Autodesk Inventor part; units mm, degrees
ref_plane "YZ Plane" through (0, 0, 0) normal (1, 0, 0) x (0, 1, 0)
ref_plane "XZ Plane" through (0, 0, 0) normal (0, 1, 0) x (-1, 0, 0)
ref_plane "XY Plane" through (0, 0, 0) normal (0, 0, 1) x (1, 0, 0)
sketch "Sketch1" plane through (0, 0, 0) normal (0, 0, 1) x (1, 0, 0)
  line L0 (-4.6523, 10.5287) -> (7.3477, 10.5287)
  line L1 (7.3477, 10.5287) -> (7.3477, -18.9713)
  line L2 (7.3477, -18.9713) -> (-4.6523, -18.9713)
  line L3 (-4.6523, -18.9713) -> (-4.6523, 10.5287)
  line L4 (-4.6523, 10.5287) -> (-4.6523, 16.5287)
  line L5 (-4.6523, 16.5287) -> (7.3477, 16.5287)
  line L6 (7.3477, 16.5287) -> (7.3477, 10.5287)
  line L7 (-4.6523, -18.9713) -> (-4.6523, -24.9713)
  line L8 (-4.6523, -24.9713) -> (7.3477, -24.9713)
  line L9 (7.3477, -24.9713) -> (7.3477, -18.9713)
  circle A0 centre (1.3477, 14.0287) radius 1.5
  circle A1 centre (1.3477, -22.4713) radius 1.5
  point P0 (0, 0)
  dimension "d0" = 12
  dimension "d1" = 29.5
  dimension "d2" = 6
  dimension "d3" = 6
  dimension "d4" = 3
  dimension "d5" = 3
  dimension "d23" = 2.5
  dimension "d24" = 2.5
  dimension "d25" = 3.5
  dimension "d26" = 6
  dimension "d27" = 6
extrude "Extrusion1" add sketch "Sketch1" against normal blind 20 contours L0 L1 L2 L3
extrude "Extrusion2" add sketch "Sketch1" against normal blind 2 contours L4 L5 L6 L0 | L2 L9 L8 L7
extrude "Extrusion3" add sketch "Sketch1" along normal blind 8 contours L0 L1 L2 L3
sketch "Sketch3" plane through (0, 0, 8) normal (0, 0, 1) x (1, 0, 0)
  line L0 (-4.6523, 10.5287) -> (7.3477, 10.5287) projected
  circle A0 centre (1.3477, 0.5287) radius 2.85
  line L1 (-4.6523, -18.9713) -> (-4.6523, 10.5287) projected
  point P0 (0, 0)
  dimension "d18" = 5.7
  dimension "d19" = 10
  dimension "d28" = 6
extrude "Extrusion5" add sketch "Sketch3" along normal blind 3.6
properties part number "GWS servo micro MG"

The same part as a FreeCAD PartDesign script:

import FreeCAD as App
import Part
import Sketcher

V = App.Vector


def add_polygon(sketch, points):
    """Adds a closed chain of lines whose ends are joined by coincident constraints."""
    first, n = sketch.GeometryCount, len(points)
    for a, b in zip(points, points[1:] + points[:1]):
        sketch.addGeometry(Part.LineSegment(App.Vector(*a, 0), App.Vector(*b, 0)), False)
    for i in range(n):
        sketch.addConstraint(Sketcher.Constraint("Coincident", first + i, 2, first + (i + 1) % n, 1))

doc = App.newDocument("Part")
params = doc.addObject("Spreadsheet::Sheet", "Params")
for row, (alias, value) in enumerate([
    ("sketch1_width", "12 mm"),
    ("sketch1_height", "29.5 mm"),
    ("pad1_length", "20 mm"),
    ("sketch2_diameter", "3 mm"),
    ("sketch2_width", "12 mm"),
    ("sketch2_height", "6 mm"),
    ("pad2_length", "2 mm"),
    ("sketch3_width", "12 mm"),
    ("sketch3_height", "29.5 mm"),
    ("pad3_length", "8 mm"),
    ("sketch4_diameter", "5.7 mm"),
    ("pad4_length", "3.6 mm"),
], start=1):
    params.set(f"A{row}", alias)
    params.set(f"B{row}", "=" + value)
    params.setAlias(f"B{row}", alias)

body = doc.addObject("PartDesign::Body", "Body")

sketch1 = body.newObject("Sketcher::SketchObject", "Sketch")
sketch1.AttachmentSupport = (doc.getObject("XY_Plane"), [""])
sketch1.MapMode = "FlatFace"
add_polygon(sketch1, [(7, 11), (-5, 11), (-5, -19), (7, -19)])
sketch1.addConstraint(Sketcher.Constraint("Horizontal", 0))
sketch1.addConstraint(Sketcher.Constraint("Vertical", 1))
sketch1.addConstraint(Sketcher.Constraint("Horizontal", 2))
sketch1.addConstraint(Sketcher.Constraint("Vertical", 3))
sketch1.addConstraint(Sketcher.Constraint("DistanceX", 0, 2, 0, 1, 12.0))
sketch1.addConstraint(Sketcher.Constraint("DistanceY", 1, 2, 1, 1, 29.5))
sketch1.addConstraint(Sketcher.Constraint("DistanceX", 0, 2, -1, 1, 4.6523))
sketch1.addConstraint(Sketcher.Constraint("DistanceY", -1, 1, 0, 2, 10.5287))
sketch1.setExpression("Constraints[8]", "Params.sketch1_width")
sketch1.setExpression("Constraints[9]", "Params.sketch1_height")
pad1 = body.newObject("PartDesign::Pad", "Pad")
pad1.Profile = sketch1
pad1.setExpression("Length", "Params.pad1_length")
pad1.Reversed = True

sketch2 = body.newObject("Sketcher::SketchObject", "Sketch001")
sketch2.AttachmentSupport = (doc.getObject("XY_Plane"), [""])
sketch2.MapMode = "FlatFace"
add_polygon(sketch2, [(-4.7, 16.5), (-4.7, 10.5), (7.3, 10.5), (7.3, 16.5)])
sketch2.addGeometry(Part.Circle(V(1.3, 14, 0), V(0, 0, 1), 1.5), False)
add_polygon(sketch2, [(7.3, -19), (-4.7, -19), (-4.7, -25), (7.3, -25)])
sketch2.addGeometry(Part.Circle(V(1.3, -22.5, 0), V(0, 0, 1), 1.5), False)
sketch2.addConstraint(Sketcher.Constraint("Vertical", 0))
sketch2.addConstraint(Sketcher.Constraint("Horizontal", 1))
sketch2.addConstraint(Sketcher.Constraint("Vertical", 2))
sketch2.addConstraint(Sketcher.Constraint("Horizontal", 3))
sketch2.addConstraint(Sketcher.Constraint("Horizontal", 5))
sketch2.addConstraint(Sketcher.Constraint("Vertical", 6))
sketch2.addConstraint(Sketcher.Constraint("Horizontal", 7))
sketch2.addConstraint(Sketcher.Constraint("Vertical", 8))
sketch2.addConstraint(Sketcher.Constraint("Equal", 4, 9))
sketch2.addConstraint(Sketcher.Constraint("Vertical", 4, 3, 9, 3))
sketch2.addConstraint(Sketcher.Constraint("Vertical", 3, 2, 5, 2))
sketch2.addConstraint(Sketcher.Constraint("Vertical", 2, 2, 7, 2))
sketch2.addConstraint(Sketcher.Constraint("Equal", 2, 6))
sketch2.addConstraint(Sketcher.Constraint("Diameter", 4, 3.0))
sketch2.addConstraint(Sketcher.Constraint("DistanceX", 1, 1, 1, 2, 12.0))
sketch2.addConstraint(Sketcher.Constraint("DistanceY", 0, 2, 0, 1, 6.0))
sketch2.addConstraint(Sketcher.Constraint("DistanceX", 0, 2, 4, 3, 6.0))
sketch2.addConstraint(Sketcher.Constraint("DistanceY", 0, 2, 4, 3, 3.5))
sketch2.addConstraint(Sketcher.Constraint("DistanceY", 9, 3, 5, 2, 3.5))
sketch2.addConstraint(Sketcher.Constraint("DistanceY", 5, 2, 0, 2, 29.5))
sketch2.addConstraint(Sketcher.Constraint("DistanceX", -1, 1, 4, 3, 1.3477))
sketch2.addConstraint(Sketcher.Constraint("DistanceY", -1, 1, 4, 3, 14.0287))
sketch2.setExpression("Constraints[21]", "Params.sketch2_diameter")
sketch2.setExpression("Constraints[22]", "Params.sketch2_width")
sketch2.setExpression("Constraints[23]", "Params.sketch2_height")
pad2 = body.newObject("PartDesign::Pad", "Pad001")
pad2.Profile = sketch2
pad2.setExpression("Length", "Params.pad2_length")
pad2.Reversed = True

sketch3 = body.newObject("Sketcher::SketchObject", "Sketch002")
sketch3.AttachmentSupport = (doc.getObject("XY_Plane"), [""])
sketch3.MapMode = "FlatFace"
add_polygon(sketch3, [(7, 11), (-5, 11), (-5, -19), (7, -19)])
sketch3.addConstraint(Sketcher.Constraint("Horizontal", 0))
sketch3.addConstraint(Sketcher.Constraint("Vertical", 1))
sketch3.addConstraint(Sketcher.Constraint("Horizontal", 2))
sketch3.addConstraint(Sketcher.Constraint("Vertical", 3))
sketch3.addConstraint(Sketcher.Constraint("DistanceX", 0, 2, 0, 1, 12.0))
sketch3.addConstraint(Sketcher.Constraint("DistanceY", 1, 2, 1, 1, 29.5))
sketch3.addConstraint(Sketcher.Constraint("DistanceX", 0, 2, -1, 1, 4.6523))
sketch3.addConstraint(Sketcher.Constraint("DistanceY", -1, 1, 0, 2, 10.5287))
sketch3.setExpression("Constraints[8]", "Params.sketch3_width")
sketch3.setExpression("Constraints[9]", "Params.sketch3_height")
pad3 = body.newObject("PartDesign::Pad", "Pad002")
pad3.Profile = sketch3
pad3.setExpression("Length", "Params.pad3_length")

sketch4 = body.newObject("Sketcher::SketchObject", "Sketch003")
sketch4.AttachmentSupport = (doc.getObject("XY_Plane"), [""])
sketch4.MapMode = "FlatFace"
sketch4.AttachmentOffset = App.Placement(V(0, 0, 8), App.Rotation())
sketch4.addGeometry(Part.Circle(V(1.3, 0.5, 0), V(0, 0, 1), 2.9), False)
sketch4.addConstraint(Sketcher.Constraint("Diameter", 0, 5.7))
sketch4.addConstraint(Sketcher.Constraint("DistanceX", -1, 1, 0, 3, 1.3477))
sketch4.addConstraint(Sketcher.Constraint("DistanceY", -1, 1, 0, 3, 0.5287))
sketch4.setExpression("Constraints[0]", "Params.sketch4_diameter")
pad4 = body.newObject("PartDesign::Pad", "Pad003")
pad4.Profile = sketch4
pad4.setExpression("Length", "Params.pad4_length")

doc.recompute()
